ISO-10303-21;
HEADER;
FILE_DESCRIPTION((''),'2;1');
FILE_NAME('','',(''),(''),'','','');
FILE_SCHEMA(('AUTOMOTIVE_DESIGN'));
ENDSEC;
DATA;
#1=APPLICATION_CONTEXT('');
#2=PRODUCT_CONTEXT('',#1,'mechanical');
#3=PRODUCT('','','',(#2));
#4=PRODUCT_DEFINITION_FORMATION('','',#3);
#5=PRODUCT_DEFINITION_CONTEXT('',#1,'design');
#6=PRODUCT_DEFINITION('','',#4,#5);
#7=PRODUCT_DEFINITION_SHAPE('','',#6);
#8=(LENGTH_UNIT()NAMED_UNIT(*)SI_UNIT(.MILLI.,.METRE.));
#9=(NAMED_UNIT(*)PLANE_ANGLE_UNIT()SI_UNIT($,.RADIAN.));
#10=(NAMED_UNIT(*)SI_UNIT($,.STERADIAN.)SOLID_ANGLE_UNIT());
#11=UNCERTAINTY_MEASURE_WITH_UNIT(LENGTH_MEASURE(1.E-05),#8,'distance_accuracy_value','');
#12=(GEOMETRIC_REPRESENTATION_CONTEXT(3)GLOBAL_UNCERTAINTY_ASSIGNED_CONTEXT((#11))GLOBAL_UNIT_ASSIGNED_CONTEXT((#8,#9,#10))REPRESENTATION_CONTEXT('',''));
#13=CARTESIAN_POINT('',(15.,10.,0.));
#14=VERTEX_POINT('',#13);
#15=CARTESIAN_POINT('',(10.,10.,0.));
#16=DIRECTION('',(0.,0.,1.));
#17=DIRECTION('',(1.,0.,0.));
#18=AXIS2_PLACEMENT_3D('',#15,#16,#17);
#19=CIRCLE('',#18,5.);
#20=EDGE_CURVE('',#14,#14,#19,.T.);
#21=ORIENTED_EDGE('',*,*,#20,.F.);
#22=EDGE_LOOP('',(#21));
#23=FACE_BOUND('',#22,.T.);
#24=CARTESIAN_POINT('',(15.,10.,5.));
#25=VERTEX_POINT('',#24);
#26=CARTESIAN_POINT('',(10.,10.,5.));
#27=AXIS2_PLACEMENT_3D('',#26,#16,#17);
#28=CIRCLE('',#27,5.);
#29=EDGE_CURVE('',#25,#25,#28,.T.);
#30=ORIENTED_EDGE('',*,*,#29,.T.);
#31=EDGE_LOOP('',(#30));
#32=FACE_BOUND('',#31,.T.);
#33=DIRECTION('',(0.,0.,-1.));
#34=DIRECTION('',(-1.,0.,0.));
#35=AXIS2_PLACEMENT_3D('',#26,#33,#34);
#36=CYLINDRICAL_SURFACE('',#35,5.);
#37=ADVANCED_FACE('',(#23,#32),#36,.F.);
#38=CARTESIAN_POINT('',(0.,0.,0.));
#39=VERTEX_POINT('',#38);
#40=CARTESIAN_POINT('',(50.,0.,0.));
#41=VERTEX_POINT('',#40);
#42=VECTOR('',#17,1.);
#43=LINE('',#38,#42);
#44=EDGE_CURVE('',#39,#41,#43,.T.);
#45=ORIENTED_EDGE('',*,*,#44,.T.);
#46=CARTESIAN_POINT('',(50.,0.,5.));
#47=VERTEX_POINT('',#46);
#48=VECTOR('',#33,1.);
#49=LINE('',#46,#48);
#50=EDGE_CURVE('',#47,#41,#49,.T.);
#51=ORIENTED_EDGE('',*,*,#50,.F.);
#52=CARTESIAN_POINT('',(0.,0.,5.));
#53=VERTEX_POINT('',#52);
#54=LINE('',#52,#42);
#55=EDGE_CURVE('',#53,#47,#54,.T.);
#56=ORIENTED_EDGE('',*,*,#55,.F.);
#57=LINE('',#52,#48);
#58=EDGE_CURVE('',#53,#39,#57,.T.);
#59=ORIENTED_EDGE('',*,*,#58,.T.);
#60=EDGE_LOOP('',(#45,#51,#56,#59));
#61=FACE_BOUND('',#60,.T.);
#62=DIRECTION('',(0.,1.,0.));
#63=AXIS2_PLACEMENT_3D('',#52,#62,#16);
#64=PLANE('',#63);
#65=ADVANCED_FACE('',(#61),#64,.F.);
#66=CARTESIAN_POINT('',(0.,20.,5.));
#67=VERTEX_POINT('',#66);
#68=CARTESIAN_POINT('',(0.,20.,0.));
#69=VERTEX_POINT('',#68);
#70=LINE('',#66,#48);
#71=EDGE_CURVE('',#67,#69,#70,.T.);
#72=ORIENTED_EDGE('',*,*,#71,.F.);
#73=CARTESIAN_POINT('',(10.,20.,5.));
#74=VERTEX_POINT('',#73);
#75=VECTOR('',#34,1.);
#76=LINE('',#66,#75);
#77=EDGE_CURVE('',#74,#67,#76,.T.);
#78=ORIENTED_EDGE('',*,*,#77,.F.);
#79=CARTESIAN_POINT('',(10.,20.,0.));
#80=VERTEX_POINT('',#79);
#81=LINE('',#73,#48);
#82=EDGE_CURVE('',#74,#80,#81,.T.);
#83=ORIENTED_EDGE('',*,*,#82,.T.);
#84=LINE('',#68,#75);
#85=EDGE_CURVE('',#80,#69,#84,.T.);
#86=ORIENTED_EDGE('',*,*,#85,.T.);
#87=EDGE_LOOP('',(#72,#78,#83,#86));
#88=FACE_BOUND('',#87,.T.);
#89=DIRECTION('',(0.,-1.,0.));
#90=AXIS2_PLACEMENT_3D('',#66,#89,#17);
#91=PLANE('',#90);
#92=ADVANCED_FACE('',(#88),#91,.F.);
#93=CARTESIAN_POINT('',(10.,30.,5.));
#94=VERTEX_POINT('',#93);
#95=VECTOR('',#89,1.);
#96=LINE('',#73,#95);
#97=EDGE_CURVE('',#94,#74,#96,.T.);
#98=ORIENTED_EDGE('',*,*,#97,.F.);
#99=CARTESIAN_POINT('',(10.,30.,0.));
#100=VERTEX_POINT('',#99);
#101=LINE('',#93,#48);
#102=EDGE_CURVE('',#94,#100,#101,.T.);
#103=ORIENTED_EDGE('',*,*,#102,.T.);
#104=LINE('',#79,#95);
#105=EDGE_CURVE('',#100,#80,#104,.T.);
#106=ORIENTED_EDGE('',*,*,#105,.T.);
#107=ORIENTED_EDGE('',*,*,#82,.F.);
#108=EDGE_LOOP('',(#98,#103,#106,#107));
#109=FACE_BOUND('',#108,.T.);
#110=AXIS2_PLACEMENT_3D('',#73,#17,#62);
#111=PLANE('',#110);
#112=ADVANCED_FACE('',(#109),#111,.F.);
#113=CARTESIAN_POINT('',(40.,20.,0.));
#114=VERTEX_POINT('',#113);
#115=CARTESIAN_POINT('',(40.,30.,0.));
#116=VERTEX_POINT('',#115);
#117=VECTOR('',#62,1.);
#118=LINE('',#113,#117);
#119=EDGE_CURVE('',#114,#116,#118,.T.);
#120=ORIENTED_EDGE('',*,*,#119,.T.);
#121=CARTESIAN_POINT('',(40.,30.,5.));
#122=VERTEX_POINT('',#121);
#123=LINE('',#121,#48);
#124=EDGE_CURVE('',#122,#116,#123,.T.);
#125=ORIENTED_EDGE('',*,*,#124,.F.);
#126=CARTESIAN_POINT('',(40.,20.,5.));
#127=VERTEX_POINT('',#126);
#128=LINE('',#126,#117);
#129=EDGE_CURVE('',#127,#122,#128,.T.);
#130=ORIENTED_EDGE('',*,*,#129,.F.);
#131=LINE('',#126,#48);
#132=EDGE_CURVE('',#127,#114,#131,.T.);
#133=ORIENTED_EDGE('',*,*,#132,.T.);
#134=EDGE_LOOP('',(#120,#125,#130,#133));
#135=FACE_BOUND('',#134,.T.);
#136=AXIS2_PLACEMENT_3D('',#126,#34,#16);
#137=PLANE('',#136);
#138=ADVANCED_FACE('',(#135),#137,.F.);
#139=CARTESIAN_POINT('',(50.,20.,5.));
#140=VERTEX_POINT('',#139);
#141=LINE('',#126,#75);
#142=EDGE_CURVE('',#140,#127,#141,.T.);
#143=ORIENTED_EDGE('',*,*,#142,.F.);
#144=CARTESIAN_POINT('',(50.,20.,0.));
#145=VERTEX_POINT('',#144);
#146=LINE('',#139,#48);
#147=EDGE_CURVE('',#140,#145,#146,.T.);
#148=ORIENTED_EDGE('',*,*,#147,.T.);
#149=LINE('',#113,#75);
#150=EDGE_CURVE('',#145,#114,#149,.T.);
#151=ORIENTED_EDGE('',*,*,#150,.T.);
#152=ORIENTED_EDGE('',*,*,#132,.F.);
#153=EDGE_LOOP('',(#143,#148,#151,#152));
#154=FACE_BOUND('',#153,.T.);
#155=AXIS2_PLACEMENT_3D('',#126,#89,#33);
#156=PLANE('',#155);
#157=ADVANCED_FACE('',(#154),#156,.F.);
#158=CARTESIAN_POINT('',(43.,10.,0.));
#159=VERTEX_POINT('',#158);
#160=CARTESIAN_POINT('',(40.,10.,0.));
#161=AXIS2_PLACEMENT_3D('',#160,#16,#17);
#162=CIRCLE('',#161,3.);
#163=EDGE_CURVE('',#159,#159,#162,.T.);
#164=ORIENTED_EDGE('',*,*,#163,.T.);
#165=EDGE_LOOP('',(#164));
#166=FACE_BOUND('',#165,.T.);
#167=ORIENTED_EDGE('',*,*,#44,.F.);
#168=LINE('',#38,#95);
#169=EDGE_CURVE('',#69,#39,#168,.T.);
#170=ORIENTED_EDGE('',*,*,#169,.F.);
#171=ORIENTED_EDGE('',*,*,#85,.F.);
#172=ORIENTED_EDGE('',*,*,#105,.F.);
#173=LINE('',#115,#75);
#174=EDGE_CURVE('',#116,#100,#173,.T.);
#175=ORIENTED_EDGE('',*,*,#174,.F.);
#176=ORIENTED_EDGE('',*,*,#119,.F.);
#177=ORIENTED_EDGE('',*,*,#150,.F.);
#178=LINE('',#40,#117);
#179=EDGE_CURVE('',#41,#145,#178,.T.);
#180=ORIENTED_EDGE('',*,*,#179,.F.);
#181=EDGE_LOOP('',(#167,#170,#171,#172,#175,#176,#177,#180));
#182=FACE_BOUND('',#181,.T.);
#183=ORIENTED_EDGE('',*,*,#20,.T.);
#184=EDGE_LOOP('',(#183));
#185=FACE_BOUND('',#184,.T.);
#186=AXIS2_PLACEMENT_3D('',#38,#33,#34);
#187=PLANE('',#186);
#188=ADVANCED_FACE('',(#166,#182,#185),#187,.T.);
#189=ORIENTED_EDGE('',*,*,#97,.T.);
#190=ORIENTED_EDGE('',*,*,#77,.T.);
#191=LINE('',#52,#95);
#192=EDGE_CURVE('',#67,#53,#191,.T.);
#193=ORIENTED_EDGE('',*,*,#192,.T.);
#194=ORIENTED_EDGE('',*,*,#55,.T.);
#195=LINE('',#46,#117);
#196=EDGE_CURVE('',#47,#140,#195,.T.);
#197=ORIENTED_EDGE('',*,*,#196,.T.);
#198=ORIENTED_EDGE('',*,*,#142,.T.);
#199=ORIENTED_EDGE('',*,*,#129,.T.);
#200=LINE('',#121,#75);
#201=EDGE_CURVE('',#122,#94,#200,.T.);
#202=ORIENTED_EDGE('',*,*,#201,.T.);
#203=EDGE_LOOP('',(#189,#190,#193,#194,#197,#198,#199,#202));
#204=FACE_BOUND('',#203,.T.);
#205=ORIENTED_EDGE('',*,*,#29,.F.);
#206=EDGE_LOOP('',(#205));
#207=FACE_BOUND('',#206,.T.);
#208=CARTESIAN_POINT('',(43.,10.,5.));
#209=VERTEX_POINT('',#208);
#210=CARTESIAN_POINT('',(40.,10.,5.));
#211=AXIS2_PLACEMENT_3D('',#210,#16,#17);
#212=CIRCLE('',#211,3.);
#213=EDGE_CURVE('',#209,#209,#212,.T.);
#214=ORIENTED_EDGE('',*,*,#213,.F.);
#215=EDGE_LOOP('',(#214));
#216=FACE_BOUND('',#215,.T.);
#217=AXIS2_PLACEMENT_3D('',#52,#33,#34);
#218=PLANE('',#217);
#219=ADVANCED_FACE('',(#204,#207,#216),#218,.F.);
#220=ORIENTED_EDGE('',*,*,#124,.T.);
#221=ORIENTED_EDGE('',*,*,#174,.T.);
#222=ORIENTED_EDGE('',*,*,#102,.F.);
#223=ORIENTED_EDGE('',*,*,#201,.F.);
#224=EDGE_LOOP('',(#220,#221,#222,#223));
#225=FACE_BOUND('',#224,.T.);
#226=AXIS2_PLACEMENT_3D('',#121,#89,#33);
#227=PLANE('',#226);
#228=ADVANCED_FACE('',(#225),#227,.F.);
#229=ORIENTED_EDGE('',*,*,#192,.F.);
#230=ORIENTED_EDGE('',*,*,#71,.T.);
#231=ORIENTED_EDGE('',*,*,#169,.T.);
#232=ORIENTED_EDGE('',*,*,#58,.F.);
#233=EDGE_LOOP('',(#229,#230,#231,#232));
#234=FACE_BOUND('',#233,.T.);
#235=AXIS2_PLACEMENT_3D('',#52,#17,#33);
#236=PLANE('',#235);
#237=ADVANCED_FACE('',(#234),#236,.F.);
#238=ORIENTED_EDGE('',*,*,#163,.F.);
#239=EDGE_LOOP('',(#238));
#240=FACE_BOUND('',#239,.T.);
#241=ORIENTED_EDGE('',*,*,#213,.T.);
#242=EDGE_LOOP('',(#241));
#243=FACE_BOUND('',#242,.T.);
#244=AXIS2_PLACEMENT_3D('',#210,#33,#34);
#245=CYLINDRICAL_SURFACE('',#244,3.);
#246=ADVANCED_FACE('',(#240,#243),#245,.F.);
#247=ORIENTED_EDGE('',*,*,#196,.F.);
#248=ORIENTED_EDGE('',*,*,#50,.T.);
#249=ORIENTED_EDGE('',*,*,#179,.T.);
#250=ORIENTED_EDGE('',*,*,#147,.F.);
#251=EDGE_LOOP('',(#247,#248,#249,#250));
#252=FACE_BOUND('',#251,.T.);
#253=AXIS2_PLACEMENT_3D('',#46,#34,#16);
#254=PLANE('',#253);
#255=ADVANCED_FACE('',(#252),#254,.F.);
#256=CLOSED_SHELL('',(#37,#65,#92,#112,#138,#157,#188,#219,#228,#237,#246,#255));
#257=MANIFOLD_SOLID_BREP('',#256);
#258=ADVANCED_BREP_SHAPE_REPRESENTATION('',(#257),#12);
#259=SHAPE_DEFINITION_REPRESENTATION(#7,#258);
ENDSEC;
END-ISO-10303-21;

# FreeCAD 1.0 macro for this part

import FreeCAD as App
import Part
import Sketcher

V = App.Vector
Q = App.Units.Quantity

doc = App.newDocument("Part")
body = doc.addObject("PartDesign::Body", "Body")

sketch1 = body.newObject("Sketcher::SketchObject", "Sketch")
sketch1.AttachmentSupport = (doc.getObject("XY_Plane"), [""])
sketch1.MapMode = "FlatFace"
sketch1.addGeometry([
    Part.LineSegment(V(50, 20, 0), V(40, 20, 0)),
    Part.LineSegment(V(40, 20, 0), V(40, 30, 0)),
    Part.LineSegment(V(40, 30, 0), V(10, 30, 0)),
    Part.LineSegment(V(10, 30, 0), V(10, 20, 0)),
    Part.LineSegment(V(10, 20, 0), V(0, 20, 0)),
    Part.LineSegment(V(0, 20, 0), V(0, 0, 0)),
    Part.LineSegment(V(0, 0, 0), V(50, 0, 0)),
    Part.LineSegment(V(50, 0, 0), V(50, 20, 0)),
    Part.Circle(V(40, 10, 0), V(0, 0, 1), 3),
    Part.Circle(V(10, 10, 0), V(0, 0, 1), 5),
], False)
sketch1.addConstraint([
    Sketcher.Constraint("Coincident", 0, 2, 1, 1),
    Sketcher.Constraint("Coincident", 1, 2, 2, 1),
    Sketcher.Constraint("Coincident", 2, 2, 3, 1),
    Sketcher.Constraint("Coincident", 3, 2, 4, 1),
    Sketcher.Constraint("Coincident", 4, 2, 5, 1),
    Sketcher.Constraint("Coincident", 5, 2, 6, 1),
    Sketcher.Constraint("Coincident", 6, 2, 7, 1),
    Sketcher.Constraint("Coincident", 7, 2, 0, 1),
    Sketcher.Constraint("Horizontal", 0),
    Sketcher.Constraint("Vertical", 1),
    Sketcher.Constraint("Horizontal", 2),
    Sketcher.Constraint("Vertical", 3),
    Sketcher.Constraint("Horizontal", 4),
    Sketcher.Constraint("Vertical", 5),
    Sketcher.Constraint("Horizontal", 6),
    Sketcher.Constraint("Vertical", 7),
    Sketcher.Constraint("Coincident", 5, 2, -1, 1),
    Sketcher.Constraint("Horizontal", 8, 3, 9, 3),
    Sketcher.Constraint("Horizontal", 0, 2, 3, 2),
    Sketcher.Constraint("Vertical", 8, 3, 0, 2),
    Sketcher.Constraint("Vertical", 9, 3, 2, 2),
    Sketcher.Constraint("Equal", 0, 4),
    Sketcher.Constraint("Equal", 4, 1),
    Sketcher.Constraint("Diameter", 8, Q("6 mm")),
    Sketcher.Constraint("Diameter", 9, Q("10 mm")),
    Sketcher.Constraint("DistanceX", 0, 2, 0, 1, Q("10 mm")),
    Sketcher.Constraint("DistanceX", 2, 2, 2, 1, Q("30 mm")),
    Sketcher.Constraint("DistanceY", 5, 2, 5, 1, Q("20 mm")),
    Sketcher.Constraint("DistanceY", -1, 1, 8, 3, Q("10 mm")),
])
pad1 = body.newObject("PartDesign::Pad", "Pad")
pad1.Profile = sketch1
pad1.Length = 5

doc.recompute()
